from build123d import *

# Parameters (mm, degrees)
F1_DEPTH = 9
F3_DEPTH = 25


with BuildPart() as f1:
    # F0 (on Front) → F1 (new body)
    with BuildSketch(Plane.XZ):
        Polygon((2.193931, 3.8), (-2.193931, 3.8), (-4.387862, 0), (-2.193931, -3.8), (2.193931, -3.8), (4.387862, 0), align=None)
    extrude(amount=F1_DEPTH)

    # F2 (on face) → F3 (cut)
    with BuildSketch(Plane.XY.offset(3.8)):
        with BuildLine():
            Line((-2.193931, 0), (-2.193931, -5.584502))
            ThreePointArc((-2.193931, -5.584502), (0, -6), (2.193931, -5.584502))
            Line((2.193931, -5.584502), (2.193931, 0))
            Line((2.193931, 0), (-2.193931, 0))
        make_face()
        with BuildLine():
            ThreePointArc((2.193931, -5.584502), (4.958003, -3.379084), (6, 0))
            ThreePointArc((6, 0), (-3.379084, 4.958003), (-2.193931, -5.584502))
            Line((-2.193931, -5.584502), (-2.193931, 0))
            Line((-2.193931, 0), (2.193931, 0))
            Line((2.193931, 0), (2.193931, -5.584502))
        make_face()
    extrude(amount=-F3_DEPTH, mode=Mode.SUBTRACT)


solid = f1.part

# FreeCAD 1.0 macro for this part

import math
import FreeCAD as App
import Part
import Sketcher
from FreeCAD import Vector
Q = App.Units.Quantity


def add_polygon(sketch, points):
    """Adds a closed chain of lines whose ends are joined by coincident constraints."""
    first, n = sketch.GeometryCount, len(points)
    for a, b in zip(points, points[1:] + points[:1]):
        sketch.addGeometry(Part.LineSegment(App.Vector(*a, 0), App.Vector(*b, 0)), False)
    for i in range(n):
        sketch.addConstraint(Sketcher.Constraint("Coincident", first + i, 2, first + (i + 1) % n, 1))

doc = App.newDocument("Part")
body = doc.addObject("PartDesign::Body", "Body")

# Sketch on XZ plane
sketch1 = body.newObject("Sketcher::SketchObject", "Sketch")
sketch1.AttachmentSupport = (doc.getObject("XZ_Plane"), [""])
sketch1.MapMode = "FlatFace"
add_polygon(sketch1, [(2.2, 3.8), (-2.2, 3.8), (-4.4, 0), (-2.2, -3.8), (2.2, -3.8), (4.4, 0)])  # lines 0-5
sketch1.addConstraint(Sketcher.Constraint("Horizontal", 0))
sketch1.addConstraint(Sketcher.Constraint("Horizontal", 3))
sketch1.addConstraint(Sketcher.Constraint("Symmetric", 0, 2, 3, 2, -1, 1))
sketch1.addConstraint(Sketcher.Constraint("Symmetric", 1, 2, 4, 2, -1, 1))
sketch1.addConstraint(Sketcher.Constraint("PointOnObject", 1, 2, -1))
sketch1.addConstraint(Sketcher.Constraint("Parallel", 2, 5))
sketch1.addConstraint(Sketcher.Constraint("Vertical", 0, 2, 2, 2))
sketch1.addConstraint(Sketcher.Constraint("Angle", 1, Q("-120 deg")))
sketch1.addConstraint(Sketcher.Constraint("DistanceY", -1, 1, 0, 2, Q("3.8 mm")))
sketch1.addConstraint(Sketcher.Constraint("DistanceX", 0, 2, 0, 1, Q("4.387862 mm")))
pad1 = body.newObject("PartDesign::Pad", "Pad")
pad1.Profile = sketch1
pad1.Length = 9

# Sketch on XY plane
sketch2 = body.newObject("Sketcher::SketchObject", "Sketch001")
sketch2.AttachmentSupport = (doc.getObject("XY_Plane"), [""])
sketch2.MapMode = "FlatFace"
sketch2.AttachmentOffset = App.Placement(Vector(0, 0, 3.8), App.Rotation())
sketch2.addGeometry(Part.ArcOfCircle(Part.Circle(Vector(0, 0, 0), Vector(0, 0, 1), 6), math.radians(-111), math.radians(-69)), False)
sketch2.addGeometry(Part.ArcOfCircle(Part.Circle(Vector(0, 0, 0), Vector(0, 0, 1), 6), math.radians(-69), math.radians(0)), False)
sketch2.addGeometry(Part.ArcOfCircle(Part.Circle(Vector(0, 0, 0), Vector(0, 0, 1), 6), math.radians(0), math.radians(249)), False)
sketch2.addConstraint(Sketcher.Constraint("Tangent", 0, 2, 1, 1))
sketch2.addConstraint(Sketcher.Constraint("Tangent", 1, 2, 2, 1))
sketch2.addConstraint(Sketcher.Constraint("Tangent", 2, 2, 0, 1))
sketch2.addConstraint(Sketcher.Constraint("Coincident", 0, 3, -1, 1))
sketch2.addConstraint(Sketcher.Constraint("PointOnObject", 1, 2, -1))
sketch2.addConstraint(Sketcher.Constraint("Horizontal", 0, 2, 2, 2))
sketch2.addConstraint(Sketcher.Constraint("Radius", 1, Q("5.999998 mm")))
sketch2.addConstraint(Sketcher.Constraint("DistanceY", 2, 2, -1, 1, Q("5.584502 mm")))
pocket1 = body.newObject("PartDesign::Pocket", "Pocket")
pocket1.Profile = sketch2
pocket1.Length = 25

doc.recompute()
